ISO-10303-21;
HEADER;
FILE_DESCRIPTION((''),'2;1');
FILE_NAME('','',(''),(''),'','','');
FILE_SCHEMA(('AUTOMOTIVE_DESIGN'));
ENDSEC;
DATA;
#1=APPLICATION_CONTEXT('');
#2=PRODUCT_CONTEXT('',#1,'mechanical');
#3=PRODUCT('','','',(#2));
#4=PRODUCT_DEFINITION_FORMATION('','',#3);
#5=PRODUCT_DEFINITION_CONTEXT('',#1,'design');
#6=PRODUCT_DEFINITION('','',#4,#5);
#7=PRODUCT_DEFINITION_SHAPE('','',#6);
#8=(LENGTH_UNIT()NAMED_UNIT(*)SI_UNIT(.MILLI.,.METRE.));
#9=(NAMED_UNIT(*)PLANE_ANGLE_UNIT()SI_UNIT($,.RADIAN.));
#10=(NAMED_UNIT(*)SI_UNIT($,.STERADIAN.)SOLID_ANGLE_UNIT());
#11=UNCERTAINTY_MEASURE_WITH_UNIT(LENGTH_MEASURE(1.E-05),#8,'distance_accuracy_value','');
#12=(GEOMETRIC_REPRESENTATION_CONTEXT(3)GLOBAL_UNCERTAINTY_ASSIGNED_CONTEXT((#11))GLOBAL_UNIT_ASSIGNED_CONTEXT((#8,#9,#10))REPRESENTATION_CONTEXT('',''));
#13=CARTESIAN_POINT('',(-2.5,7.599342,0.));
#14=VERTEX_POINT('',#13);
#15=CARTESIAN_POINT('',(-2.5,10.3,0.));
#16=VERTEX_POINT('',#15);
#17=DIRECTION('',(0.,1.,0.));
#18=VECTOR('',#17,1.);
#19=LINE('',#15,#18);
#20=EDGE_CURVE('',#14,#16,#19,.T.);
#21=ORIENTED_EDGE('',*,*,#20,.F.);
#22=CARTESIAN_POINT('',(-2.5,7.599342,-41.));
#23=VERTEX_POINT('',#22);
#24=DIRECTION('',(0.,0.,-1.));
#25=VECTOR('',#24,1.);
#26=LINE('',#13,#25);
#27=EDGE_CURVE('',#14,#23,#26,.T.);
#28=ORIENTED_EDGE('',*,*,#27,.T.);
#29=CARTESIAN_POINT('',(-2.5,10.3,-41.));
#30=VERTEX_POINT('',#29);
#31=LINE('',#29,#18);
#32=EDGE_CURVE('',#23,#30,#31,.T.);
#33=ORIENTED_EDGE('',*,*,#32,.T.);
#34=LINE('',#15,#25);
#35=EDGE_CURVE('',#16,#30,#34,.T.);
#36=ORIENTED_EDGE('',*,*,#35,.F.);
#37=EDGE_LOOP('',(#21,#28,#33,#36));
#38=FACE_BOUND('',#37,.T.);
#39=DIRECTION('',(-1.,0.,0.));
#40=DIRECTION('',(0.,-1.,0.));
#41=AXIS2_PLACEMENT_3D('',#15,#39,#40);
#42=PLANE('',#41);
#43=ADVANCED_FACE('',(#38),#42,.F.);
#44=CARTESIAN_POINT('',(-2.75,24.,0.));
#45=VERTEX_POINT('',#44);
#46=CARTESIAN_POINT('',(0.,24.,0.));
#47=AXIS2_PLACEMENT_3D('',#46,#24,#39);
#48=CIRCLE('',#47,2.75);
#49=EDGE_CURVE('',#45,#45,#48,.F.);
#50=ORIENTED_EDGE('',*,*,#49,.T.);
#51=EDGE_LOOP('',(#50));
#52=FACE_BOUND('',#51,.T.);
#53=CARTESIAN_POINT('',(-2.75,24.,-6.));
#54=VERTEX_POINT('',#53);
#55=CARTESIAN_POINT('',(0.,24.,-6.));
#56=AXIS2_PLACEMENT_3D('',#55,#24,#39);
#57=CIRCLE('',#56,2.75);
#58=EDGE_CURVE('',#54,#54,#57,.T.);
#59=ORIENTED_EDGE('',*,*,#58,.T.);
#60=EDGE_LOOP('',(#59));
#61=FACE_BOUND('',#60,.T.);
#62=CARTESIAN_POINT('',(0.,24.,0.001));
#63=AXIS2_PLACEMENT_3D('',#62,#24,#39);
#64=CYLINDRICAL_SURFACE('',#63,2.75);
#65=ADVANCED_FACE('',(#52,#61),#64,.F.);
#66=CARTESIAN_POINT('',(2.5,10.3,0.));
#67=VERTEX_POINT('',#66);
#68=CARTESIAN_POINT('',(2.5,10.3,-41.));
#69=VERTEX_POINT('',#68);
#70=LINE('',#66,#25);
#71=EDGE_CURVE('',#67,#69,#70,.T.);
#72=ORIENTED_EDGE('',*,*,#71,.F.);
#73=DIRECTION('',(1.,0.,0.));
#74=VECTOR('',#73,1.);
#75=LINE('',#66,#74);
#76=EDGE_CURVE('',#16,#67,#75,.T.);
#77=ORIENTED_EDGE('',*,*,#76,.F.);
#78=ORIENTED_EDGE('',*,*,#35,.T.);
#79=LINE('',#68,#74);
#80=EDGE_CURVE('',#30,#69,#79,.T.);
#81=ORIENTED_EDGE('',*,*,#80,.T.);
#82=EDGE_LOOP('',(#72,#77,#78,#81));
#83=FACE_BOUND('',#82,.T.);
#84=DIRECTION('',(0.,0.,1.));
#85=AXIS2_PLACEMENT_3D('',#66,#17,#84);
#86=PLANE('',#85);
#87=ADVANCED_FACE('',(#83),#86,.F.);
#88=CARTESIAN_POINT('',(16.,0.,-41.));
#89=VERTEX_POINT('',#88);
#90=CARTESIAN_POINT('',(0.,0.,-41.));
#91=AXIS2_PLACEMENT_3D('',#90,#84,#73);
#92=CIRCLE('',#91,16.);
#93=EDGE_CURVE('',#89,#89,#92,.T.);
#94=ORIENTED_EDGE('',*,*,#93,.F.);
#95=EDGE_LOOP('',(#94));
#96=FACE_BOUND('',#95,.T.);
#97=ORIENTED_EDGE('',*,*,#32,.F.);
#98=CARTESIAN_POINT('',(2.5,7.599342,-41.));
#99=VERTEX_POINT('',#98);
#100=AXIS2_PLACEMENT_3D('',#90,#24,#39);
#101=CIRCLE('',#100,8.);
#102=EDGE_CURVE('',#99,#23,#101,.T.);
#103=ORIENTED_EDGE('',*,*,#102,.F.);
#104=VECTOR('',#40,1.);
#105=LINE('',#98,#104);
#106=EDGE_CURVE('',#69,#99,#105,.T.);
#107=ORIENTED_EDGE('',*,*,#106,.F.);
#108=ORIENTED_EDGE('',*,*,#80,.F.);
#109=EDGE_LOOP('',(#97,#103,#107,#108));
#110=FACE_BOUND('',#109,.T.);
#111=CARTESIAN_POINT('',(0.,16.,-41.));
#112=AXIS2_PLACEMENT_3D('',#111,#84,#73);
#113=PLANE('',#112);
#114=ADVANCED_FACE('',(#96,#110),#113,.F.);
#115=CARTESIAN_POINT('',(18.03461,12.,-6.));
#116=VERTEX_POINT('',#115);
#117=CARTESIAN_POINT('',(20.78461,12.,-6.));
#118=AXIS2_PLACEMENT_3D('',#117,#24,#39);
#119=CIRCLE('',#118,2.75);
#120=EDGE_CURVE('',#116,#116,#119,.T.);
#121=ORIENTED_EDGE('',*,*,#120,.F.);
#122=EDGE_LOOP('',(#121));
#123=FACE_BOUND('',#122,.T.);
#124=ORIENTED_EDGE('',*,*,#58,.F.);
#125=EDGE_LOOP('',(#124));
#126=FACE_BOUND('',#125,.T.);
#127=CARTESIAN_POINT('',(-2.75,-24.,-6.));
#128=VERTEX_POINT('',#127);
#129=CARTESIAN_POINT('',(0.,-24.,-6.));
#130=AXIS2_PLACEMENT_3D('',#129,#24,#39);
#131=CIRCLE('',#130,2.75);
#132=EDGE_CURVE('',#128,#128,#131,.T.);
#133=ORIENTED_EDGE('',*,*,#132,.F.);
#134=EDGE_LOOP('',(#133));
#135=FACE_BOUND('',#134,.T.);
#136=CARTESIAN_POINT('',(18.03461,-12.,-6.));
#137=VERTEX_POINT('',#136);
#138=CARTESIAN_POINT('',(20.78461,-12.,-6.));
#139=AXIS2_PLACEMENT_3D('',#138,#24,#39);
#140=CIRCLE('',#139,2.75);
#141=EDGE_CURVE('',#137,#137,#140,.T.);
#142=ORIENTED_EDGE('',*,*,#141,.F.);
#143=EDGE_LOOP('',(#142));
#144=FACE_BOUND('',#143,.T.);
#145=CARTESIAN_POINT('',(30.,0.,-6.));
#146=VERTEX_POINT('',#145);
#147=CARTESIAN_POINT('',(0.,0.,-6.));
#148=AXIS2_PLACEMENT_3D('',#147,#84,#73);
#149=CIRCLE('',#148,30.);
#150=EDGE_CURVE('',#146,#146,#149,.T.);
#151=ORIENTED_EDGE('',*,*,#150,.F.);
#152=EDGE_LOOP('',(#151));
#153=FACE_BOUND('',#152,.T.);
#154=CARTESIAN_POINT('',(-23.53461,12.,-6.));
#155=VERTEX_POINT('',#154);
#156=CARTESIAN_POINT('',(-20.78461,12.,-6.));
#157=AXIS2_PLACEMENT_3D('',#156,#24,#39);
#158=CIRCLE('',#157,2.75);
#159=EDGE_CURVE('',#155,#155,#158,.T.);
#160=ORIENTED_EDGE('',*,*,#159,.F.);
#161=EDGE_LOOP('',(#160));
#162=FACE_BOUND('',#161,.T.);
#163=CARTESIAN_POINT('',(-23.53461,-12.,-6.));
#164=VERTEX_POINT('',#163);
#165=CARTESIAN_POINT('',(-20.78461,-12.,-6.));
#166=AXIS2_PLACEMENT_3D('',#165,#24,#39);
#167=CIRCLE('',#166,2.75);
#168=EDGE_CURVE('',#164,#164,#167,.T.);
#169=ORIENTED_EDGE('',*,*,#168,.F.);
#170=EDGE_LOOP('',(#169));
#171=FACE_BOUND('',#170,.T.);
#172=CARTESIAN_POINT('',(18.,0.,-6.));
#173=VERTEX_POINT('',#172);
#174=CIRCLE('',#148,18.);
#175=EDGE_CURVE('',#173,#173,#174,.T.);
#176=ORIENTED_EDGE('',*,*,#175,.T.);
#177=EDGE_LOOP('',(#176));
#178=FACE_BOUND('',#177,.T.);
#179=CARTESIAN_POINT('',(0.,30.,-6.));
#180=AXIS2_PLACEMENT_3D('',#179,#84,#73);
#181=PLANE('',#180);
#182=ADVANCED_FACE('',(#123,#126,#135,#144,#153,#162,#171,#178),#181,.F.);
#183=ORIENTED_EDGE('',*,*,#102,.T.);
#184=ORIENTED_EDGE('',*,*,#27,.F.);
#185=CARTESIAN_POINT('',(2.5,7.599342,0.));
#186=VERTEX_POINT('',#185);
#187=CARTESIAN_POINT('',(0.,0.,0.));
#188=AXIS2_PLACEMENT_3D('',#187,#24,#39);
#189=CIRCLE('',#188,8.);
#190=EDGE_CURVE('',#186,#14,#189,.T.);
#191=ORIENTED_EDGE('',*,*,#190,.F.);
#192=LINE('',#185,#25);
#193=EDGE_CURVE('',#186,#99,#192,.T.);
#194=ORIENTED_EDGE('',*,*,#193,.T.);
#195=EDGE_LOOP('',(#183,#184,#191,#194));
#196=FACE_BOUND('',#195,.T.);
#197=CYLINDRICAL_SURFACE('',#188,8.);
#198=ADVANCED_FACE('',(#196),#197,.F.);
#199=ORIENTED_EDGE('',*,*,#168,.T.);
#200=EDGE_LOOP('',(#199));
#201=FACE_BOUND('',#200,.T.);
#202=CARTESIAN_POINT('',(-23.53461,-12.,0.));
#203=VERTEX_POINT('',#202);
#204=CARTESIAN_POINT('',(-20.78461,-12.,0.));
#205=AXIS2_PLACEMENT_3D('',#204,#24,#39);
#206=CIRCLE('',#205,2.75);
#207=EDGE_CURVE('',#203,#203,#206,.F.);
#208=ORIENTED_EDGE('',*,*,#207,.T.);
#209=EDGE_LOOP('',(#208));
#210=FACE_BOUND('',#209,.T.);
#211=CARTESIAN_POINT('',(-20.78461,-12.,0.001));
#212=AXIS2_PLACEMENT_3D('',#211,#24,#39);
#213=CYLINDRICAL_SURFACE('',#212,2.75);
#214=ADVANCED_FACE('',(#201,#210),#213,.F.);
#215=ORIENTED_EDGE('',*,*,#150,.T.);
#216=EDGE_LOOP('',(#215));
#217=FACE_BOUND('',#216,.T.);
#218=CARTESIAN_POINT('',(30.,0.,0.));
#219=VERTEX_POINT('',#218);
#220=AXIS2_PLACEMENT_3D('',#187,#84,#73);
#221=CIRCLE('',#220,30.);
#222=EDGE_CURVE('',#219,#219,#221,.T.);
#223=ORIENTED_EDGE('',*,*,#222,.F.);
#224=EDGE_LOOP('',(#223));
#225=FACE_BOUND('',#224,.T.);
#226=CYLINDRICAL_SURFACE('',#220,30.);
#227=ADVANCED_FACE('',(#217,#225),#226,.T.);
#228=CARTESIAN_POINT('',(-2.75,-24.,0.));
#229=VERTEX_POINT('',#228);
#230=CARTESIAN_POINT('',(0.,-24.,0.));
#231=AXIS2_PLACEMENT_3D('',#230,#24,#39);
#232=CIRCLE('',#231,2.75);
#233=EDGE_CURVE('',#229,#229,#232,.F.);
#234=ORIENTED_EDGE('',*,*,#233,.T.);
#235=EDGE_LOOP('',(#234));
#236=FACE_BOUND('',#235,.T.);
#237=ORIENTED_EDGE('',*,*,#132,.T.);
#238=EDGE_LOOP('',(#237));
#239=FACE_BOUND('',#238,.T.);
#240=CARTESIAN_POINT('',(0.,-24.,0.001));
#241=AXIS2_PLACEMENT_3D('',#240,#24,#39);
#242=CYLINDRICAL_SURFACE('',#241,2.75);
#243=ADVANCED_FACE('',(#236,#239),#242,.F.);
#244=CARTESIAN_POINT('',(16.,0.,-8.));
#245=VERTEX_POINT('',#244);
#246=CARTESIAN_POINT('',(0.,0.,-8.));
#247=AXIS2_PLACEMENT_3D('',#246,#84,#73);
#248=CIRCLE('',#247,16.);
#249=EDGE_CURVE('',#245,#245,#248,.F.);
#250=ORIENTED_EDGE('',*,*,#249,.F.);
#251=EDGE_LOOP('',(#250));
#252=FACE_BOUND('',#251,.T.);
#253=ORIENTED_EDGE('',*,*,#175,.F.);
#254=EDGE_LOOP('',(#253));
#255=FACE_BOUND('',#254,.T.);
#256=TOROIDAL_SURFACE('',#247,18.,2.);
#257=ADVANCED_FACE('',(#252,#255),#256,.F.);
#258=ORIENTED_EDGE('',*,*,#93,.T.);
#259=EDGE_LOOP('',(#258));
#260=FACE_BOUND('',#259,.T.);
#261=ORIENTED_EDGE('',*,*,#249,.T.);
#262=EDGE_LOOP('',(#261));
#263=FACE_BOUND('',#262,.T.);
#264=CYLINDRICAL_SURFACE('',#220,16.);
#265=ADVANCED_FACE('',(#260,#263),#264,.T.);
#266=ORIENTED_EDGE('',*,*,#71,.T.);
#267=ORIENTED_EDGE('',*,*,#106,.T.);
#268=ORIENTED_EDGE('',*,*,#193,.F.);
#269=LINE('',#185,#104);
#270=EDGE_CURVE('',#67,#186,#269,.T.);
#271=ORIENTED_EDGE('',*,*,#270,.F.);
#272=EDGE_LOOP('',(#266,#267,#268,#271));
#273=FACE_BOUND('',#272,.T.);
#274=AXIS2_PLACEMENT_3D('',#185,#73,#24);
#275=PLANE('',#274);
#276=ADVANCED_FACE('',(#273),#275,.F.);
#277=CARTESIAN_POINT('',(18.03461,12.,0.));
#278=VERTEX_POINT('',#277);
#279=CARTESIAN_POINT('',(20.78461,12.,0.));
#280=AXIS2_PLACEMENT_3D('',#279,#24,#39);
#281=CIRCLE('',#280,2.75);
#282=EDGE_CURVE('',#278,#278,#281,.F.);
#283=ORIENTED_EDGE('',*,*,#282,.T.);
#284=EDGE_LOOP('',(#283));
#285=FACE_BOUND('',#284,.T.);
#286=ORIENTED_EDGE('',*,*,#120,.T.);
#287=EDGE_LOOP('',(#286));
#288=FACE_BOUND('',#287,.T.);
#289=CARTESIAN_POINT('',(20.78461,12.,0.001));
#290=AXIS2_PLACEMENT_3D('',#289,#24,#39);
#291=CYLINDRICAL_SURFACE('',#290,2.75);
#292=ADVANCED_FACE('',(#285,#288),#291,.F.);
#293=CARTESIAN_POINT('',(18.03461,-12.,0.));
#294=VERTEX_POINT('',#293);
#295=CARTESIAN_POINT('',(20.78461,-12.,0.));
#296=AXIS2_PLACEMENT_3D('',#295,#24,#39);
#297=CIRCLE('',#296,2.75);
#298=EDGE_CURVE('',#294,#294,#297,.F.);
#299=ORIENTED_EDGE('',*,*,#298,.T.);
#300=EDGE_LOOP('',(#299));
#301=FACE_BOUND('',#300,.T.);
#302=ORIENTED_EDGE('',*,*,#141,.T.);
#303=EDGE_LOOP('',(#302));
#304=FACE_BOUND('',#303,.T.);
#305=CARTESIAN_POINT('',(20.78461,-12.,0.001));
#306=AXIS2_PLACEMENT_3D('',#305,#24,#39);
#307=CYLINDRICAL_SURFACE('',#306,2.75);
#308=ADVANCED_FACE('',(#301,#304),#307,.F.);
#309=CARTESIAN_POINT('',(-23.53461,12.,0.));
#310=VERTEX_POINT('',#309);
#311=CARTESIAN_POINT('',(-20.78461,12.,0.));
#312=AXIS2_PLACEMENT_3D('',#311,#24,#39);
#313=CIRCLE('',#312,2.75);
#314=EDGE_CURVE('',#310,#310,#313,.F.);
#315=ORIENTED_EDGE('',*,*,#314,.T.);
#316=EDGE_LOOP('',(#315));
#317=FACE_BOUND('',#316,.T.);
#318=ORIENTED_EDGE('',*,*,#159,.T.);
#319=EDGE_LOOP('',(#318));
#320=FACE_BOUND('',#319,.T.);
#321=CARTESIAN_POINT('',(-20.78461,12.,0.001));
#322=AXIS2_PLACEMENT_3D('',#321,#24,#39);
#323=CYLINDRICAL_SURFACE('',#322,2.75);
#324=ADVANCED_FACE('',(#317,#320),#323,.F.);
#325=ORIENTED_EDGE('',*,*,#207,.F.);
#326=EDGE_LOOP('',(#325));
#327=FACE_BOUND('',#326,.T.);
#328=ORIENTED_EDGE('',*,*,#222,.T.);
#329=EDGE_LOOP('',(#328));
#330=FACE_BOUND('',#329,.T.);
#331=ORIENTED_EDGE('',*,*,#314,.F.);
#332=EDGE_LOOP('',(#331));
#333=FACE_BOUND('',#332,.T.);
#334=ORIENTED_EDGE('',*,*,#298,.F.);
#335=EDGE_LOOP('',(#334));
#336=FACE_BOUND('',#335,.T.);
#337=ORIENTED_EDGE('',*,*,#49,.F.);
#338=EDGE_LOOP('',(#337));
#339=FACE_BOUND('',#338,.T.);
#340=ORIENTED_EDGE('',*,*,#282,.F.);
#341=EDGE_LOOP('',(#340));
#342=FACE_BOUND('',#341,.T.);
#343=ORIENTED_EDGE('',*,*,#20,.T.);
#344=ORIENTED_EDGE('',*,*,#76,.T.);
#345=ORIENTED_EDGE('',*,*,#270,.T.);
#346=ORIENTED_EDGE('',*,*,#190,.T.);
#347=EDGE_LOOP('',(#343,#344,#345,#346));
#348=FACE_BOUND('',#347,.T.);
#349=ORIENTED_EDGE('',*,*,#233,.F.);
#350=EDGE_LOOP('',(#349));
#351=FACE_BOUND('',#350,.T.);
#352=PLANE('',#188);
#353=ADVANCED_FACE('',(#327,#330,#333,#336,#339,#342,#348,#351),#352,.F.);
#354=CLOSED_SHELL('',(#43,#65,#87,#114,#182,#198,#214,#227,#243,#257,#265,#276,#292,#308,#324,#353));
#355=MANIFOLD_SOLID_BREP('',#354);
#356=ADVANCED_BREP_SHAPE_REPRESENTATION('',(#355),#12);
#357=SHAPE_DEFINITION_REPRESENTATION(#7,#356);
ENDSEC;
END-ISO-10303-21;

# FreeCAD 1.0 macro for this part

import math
import FreeCAD as App
import Part
import Sketcher
from FreeCAD import Vector


def edges_at(feature, points):
    """Names of the edges that pass closest to the given points."""
    edges = feature.Shape.Edges
    near = lambda p: min(range(len(edges)), key=lambda i: edges[i].distToShape(Part.Vertex(*p))[0])
    return sorted({f"Edge{near(p) + 1}" for p in points})


def add_polygon(sketch, points):
    """Adds a closed chain of lines whose ends are joined by coincident constraints."""
    first, n = sketch.GeometryCount, len(points)
    for a, b in zip(points, points[1:] + points[:1]):
        sketch.addGeometry(Part.LineSegment(App.Vector(*a, 0), App.Vector(*b, 0)), False)
    for i in range(n):
        sketch.addConstraint(Sketcher.Constraint("Coincident", first + i, 2, first + (i + 1) % n, 1))

doc = App.newDocument("Part")
body = doc.addObject("PartDesign::Body", "Body")

sketch1 = body.newObject("Sketcher::SketchObject", "Sketch")
sketch1.AttachmentSupport = (doc.getObject("YZ_Plane"), [""])
sketch1.MapMode = "FlatFace"
add_polygon(sketch1, [(30, 0), (0, 0), (0, -41), (16, -41), (16, -6), (30, -6)])
sketch1.addConstraint(Sketcher.Constraint("Horizontal", 0))
sketch1.addConstraint(Sketcher.Constraint("Vertical", 1))
sketch1.addConstraint(Sketcher.Constraint("Horizontal", 2))
sketch1.addConstraint(Sketcher.Constraint("Vertical", 3))
sketch1.addConstraint(Sketcher.Constraint("Horizontal", 4))
sketch1.addConstraint(Sketcher.Constraint("Vertical", 5))
sketch1.addConstraint(Sketcher.Constraint("Coincident", 0, 2, -1, 1))
sketch1.addConstraint(Sketcher.Constraint("DistanceX", 0, 2, 0, 1, 30.0))
sketch1.addConstraint(Sketcher.Constraint("DistanceX", 2, 1, 2, 2, 16.0))
sketch1.addConstraint(Sketcher.Constraint("DistanceY", 1, 2, 1, 1, 41.0))
sketch1.addConstraint(Sketcher.Constraint("DistanceY", 3, 1, 3, 2, 35.0))
revolution = body.newObject("PartDesign::Revolution", "Revolution")
revolution.Profile = sketch1
revolution.ReferenceAxis = (sketch1, ["V_Axis"])
revolution.Angle = 360

sketch2 = body.newObject("Sketcher::SketchObject", "Sketch001")
sketch2.AttachmentSupport = (doc.getObject("XY_Plane"), [""])
sketch2.MapMode = "FlatFace"
sketch2.AttachmentOffset = App.Placement(Vector(0, 0, -6), App.Rotation())
sketch2.addGeometry(Part.Circle(Vector(0, 24, 0), Vector(0, 0, 1), 2.8), False)
sketch2.addConstraint(Sketcher.Constraint("PointOnObject", 0, 3, -2))
sketch2.addConstraint(Sketcher.Constraint("Diameter", 0, 5.5))
sketch2.addConstraint(Sketcher.Constraint("DistanceY", -1, 1, 0, 3, 24.0))
pocket1 = body.newObject("PartDesign::Pocket", "Pocket")
pocket1.Profile = sketch2
pocket1.Type = "UpToFirst"
pocket1.Reversed = True

sketch3 = body.newObject("Sketcher::SketchObject", "Sketch002")
sketch3.AttachmentSupport = (doc.getObject("XY_Plane"), [""])
sketch3.MapMode = "FlatFace"
sketch3.AttachmentOffset = App.Placement(Vector(0, 0, -6), App.Rotation())
sketch3.addGeometry(Part.Circle(Vector(-20.8, 12, 0), Vector(0, 0, 1), 2.8), False)
sketch3.addConstraint(Sketcher.Constraint("Diameter", 0, 5.5))
sketch3.addConstraint(Sketcher.Constraint("DistanceY", -1, 1, 0, 3, 12.0))
sketch3.addConstraint(Sketcher.Constraint("DistanceX", 0, 3, -1, 1, 20.78461))
pocket2 = body.newObject("PartDesign::Pocket", "Pocket001")
pocket2.Profile = sketch3
pocket2.Type = "UpToFirst"
pocket2.Reversed = True

sketch4 = body.newObject("Sketcher::SketchObject", "Sketch003")
sketch4.AttachmentSupport = (doc.getObject("XY_Plane"), [""])
sketch4.MapMode = "FlatFace"
sketch4.AttachmentOffset = App.Placement(Vector(0, 0, -6), App.Rotation())
sketch4.addGeometry(Part.Circle(Vector(-20.8, -12, 0), Vector(0, 0, 1), 2.8), False)
sketch4.addConstraint(Sketcher.Constraint("Diameter", 0, 5.5))
sketch4.addConstraint(Sketcher.Constraint("DistanceY", 0, 3, -1, 1, 12.0))
sketch4.addConstraint(Sketcher.Constraint("DistanceX", 0, 3, -1, 1, 20.78461))
pocket3 = body.newObject("PartDesign::Pocket", "Pocket002")
pocket3.Profile = sketch4
pocket3.Type = "UpToFirst"
pocket3.Reversed = True

sketch5 = body.newObject("Sketcher::SketchObject", "Sketch004")
sketch5.AttachmentSupport = (doc.getObject("XY_Plane"), [""])
sketch5.MapMode = "FlatFace"
sketch5.AttachmentOffset = App.Placement(Vector(0, 0, -6), App.Rotation())
sketch5.addGeometry(Part.Circle(Vector(0, -24, 0), Vector(0, 0, 1), 2.8), False)
sketch5.addConstraint(Sketcher.Constraint("PointOnObject", 0, 3, -2))
sketch5.addConstraint(Sketcher.Constraint("Diameter", 0, 5.5))
sketch5.addConstraint(Sketcher.Constraint("DistanceY", 0, 3, -1, 1, 24.0))
pocket4 = body.newObject("PartDesign::Pocket", "Pocket003")
pocket4.Profile = sketch5
pocket4.Type = "UpToFirst"
pocket4.Reversed = True

sketch6 = body.newObject("Sketcher::SketchObject", "Sketch005")
sketch6.AttachmentSupport = (doc.getObject("XY_Plane"), [""])
sketch6.MapMode = "FlatFace"
sketch6.AttachmentOffset = App.Placement(Vector(0, 0, -6), App.Rotation())
sketch6.addGeometry(Part.Circle(Vector(20.8, -12, 0), Vector(0, 0, 1), 2.8), False)
sketch6.addConstraint(Sketcher.Constraint("Diameter", 0, 5.5))
sketch6.addConstraint(Sketcher.Constraint("DistanceY", 0, 3, -1, 1, 12.0))
sketch6.addConstraint(Sketcher.Constraint("DistanceX", -1, 1, 0, 3, 20.78461))
pocket5 = body.newObject("PartDesign::Pocket", "Pocket004")
pocket5.Profile = sketch6
pocket5.Type = "UpToFirst"
pocket5.Reversed = True

sketch7 = body.newObject("Sketcher::SketchObject", "Sketch006")
sketch7.AttachmentSupport = (doc.getObject("XY_Plane"), [""])
sketch7.MapMode = "FlatFace"
sketch7.AttachmentOffset = App.Placement(Vector(0, 0, -6), App.Rotation())
sketch7.addGeometry(Part.Circle(Vector(20.8, 12, 0), Vector(0, 0, 1), 2.8), False)
sketch7.addConstraint(Sketcher.Constraint("Diameter", 0, 5.5))
sketch7.addConstraint(Sketcher.Constraint("DistanceY", -1, 1, 0, 3, 12.0))
sketch7.addConstraint(Sketcher.Constraint("DistanceX", -1, 1, 0, 3, 20.78461))
pocket6 = body.newObject("PartDesign::Pocket", "Pocket005")
pocket6.Profile = sketch7
pocket6.Type = "UpToFirst"
pocket6.Reversed = True
doc.recompute()

fillet = body.newObject("PartDesign::Fillet", "Fillet")
fillet.Base = (pocket6, edges_at(pocket6, [(-16, 0, -6)]))
fillet.Radius = 2

sketch8 = body.newObject("Sketcher::SketchObject", "Sketch007")
sketch8.AttachmentSupport = (doc.getObject("XY_Plane"), [""])
sketch8.MapMode = "FlatFace"
sketch8.AttachmentOffset = App.Placement(Vector(0, 0, -41), App.Rotation())
sketch8.addGeometry(Part.Circle(Vector(0, 0, 0), Vector(0, 0, 1), 8), False)
sketch8.addConstraint(Sketcher.Constraint("Coincident", 0, 3, -1, 1))
sketch8.addConstraint(Sketcher.Constraint("Diameter", 0, 16.0))
pocket7 = body.newObject("PartDesign::Pocket", "Pocket006")
pocket7.Profile = sketch8
pocket7.Type = "ThroughAll"
pocket7.Reversed = True

sketch9 = body.newObject("Sketcher::SketchObject", "Sketch008")
sketch9.AttachmentSupport = (doc.getObject("XY_Plane"), [""])
sketch9.MapMode = "FlatFace"
sketch9.AttachmentOffset = App.Placement(Vector(0, 0, -41), App.Rotation())
sketch9.addGeometry(Part.LineSegment(Vector(2.5, 10.3, 0), Vector(2.5, 7.6, 0)), False)
sketch9.addGeometry(Part.ArcOfCircle(Part.Circle(Vector(0, 0, 0), Vector(0, 0, 1), 8), math.radians(72), math.radians(108)), False)
sketch9.addGeometry(Part.LineSegment(Vector(-2.5, 7.6, 0), Vector(-2.5, 10.3, 0)), False)
sketch9.addGeometry(Part.LineSegment(Vector(-2.5, 10.3, 0), Vector(2.5, 10.3, 0)), False)
sketch9.addConstraint(Sketcher.Constraint("Coincident", 0, 2, 1, 1))
sketch9.addConstraint(Sketcher.Constraint("Coincident", 1, 2, 2, 1))
sketch9.addConstraint(Sketcher.Constraint("Coincident", 2, 2, 3, 1))
sketch9.addConstraint(Sketcher.Constraint("Coincident", 3, 2, 0, 1))
sketch9.addConstraint(Sketcher.Constraint("Vertical", 0))
sketch9.addConstraint(Sketcher.Constraint("Vertical", 2))
sketch9.addConstraint(Sketcher.Constraint("Horizontal", 3))
sketch9.addConstraint(Sketcher.Constraint("Coincident", 1, 3, -1, 1))
sketch9.addConstraint(Sketcher.Constraint("Horizontal", 0, 2, 1, 2))
sketch9.addConstraint(Sketcher.Constraint("Radius", 1, 8.0))
sketch9.addConstraint(Sketcher.Constraint("DistanceX", 3, 1, 3, 2, 5.0))
sketch9.addConstraint(Sketcher.Constraint("DistanceY", -1, 1, 2, 2, 10.3))
pocket8 = body.newObject("PartDesign::Pocket", "Pocket007")
pocket8.Profile = sketch9
pocket8.Type = "ThroughAll"
pocket8.Reversed = True

doc.recompute()
